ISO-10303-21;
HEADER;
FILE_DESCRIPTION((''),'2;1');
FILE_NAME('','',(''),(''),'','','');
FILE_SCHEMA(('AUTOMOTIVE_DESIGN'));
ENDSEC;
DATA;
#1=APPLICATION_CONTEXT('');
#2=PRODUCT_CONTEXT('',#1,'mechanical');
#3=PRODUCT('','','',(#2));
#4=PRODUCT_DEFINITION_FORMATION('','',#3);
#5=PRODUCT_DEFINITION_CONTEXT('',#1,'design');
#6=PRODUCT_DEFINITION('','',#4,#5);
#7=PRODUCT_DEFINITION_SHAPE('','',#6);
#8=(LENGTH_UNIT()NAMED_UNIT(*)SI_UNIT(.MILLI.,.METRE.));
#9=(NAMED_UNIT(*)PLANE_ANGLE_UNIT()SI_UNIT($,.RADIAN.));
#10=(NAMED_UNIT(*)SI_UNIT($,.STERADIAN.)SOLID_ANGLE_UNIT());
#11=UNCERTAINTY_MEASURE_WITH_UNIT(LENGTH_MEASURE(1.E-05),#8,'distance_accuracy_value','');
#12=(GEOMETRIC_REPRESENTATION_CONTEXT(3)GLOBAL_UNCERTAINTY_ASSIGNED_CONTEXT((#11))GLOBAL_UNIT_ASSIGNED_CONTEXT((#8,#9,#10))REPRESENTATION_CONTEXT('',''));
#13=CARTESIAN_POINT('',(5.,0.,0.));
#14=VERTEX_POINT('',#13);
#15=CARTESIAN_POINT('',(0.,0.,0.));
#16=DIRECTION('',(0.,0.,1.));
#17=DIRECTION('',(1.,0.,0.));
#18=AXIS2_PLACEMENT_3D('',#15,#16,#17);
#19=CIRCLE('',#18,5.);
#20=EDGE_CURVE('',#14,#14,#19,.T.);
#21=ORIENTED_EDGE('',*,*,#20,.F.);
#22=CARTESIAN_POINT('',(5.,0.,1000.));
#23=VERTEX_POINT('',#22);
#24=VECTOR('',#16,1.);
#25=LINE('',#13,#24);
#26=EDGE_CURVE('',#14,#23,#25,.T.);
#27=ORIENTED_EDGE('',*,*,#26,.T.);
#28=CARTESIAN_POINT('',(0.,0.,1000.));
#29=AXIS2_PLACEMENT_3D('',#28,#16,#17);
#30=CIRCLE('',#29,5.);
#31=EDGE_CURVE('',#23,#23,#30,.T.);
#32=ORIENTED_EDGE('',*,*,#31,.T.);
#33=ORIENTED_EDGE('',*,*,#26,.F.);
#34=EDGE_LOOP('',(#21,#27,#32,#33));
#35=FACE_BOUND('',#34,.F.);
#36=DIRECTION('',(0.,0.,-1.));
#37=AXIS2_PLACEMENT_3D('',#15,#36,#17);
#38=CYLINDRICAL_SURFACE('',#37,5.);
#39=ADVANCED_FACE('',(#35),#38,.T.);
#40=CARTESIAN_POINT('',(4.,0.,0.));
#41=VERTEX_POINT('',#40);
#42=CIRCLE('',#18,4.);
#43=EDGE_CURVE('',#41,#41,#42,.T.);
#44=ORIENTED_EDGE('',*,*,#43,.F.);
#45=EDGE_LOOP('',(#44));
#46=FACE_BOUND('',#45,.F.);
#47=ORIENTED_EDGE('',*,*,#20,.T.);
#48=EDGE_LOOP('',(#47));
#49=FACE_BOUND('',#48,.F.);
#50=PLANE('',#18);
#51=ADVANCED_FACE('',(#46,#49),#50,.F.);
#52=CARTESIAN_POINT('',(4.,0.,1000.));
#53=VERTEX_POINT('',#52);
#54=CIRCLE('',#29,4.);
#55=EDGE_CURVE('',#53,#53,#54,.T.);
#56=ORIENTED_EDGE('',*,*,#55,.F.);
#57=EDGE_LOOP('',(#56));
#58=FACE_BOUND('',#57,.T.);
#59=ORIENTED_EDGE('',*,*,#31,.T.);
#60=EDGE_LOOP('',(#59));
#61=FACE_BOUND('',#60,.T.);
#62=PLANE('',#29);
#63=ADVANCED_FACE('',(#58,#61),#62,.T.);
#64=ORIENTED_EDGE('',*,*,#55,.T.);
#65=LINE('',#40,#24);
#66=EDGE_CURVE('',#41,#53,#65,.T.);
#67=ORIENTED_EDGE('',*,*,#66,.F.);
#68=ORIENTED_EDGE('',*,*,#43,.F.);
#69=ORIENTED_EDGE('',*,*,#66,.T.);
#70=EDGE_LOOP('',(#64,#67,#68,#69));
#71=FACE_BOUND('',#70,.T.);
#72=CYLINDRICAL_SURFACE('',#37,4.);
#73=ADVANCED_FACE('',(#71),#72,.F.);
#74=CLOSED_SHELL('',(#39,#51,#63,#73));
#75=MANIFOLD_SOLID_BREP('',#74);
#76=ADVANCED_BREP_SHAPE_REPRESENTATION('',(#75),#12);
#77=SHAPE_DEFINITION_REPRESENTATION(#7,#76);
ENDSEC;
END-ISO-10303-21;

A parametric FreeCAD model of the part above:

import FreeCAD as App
import Part
import Sketcher

V = App.Vector

doc = App.newDocument("Part")
params = doc.addObject("Spreadsheet::Sheet", "Params")
for row, (alias, value) in enumerate([
    ("sketch1_diameter", "10 mm"),
    ("sketch1_diameter2", "8 mm"),
    ("pad1_length", "1000 mm"),
], start=1):
    params.set(f"A{row}", alias)
    params.set(f"B{row}", "=" + value)
    params.setAlias(f"B{row}", alias)

body = doc.addObject("PartDesign::Body", "Body")

# Sketch on XY plane
sketch1 = body.newObject("Sketcher::SketchObject", "Sketch")
sketch1.AttachmentSupport = (doc.getObject("XY_Plane"), [""])
sketch1.MapMode = "FlatFace"
sketch1.addGeometry(Part.Circle(V(0, 0, 0), V(0, 0, 1), 5), False)
sketch1.addGeometry(Part.Circle(V(0, 0, 0), V(0, 0, 1), 4), False)
sketch1.addConstraint(Sketcher.Constraint("Coincident", 0, 3, -1, 1))
sketch1.addConstraint(Sketcher.Constraint("Coincident", 1, 3, -1, 1))
sketch1.addConstraint(Sketcher.Constraint("Diameter", 0, 10.0))
sketch1.addConstraint(Sketcher.Constraint("Diameter", 1, 8.0))
sketch1.setExpression("Constraints[2]", "Params.sketch1_diameter")
sketch1.setExpression("Constraints[3]", "Params.sketch1_diameter2")
pad1 = body.newObject("PartDesign::Pad", "Pad")
pad1.Profile = sketch1
pad1.setExpression("Length", "Params.pad1_length")

doc.recompute()
